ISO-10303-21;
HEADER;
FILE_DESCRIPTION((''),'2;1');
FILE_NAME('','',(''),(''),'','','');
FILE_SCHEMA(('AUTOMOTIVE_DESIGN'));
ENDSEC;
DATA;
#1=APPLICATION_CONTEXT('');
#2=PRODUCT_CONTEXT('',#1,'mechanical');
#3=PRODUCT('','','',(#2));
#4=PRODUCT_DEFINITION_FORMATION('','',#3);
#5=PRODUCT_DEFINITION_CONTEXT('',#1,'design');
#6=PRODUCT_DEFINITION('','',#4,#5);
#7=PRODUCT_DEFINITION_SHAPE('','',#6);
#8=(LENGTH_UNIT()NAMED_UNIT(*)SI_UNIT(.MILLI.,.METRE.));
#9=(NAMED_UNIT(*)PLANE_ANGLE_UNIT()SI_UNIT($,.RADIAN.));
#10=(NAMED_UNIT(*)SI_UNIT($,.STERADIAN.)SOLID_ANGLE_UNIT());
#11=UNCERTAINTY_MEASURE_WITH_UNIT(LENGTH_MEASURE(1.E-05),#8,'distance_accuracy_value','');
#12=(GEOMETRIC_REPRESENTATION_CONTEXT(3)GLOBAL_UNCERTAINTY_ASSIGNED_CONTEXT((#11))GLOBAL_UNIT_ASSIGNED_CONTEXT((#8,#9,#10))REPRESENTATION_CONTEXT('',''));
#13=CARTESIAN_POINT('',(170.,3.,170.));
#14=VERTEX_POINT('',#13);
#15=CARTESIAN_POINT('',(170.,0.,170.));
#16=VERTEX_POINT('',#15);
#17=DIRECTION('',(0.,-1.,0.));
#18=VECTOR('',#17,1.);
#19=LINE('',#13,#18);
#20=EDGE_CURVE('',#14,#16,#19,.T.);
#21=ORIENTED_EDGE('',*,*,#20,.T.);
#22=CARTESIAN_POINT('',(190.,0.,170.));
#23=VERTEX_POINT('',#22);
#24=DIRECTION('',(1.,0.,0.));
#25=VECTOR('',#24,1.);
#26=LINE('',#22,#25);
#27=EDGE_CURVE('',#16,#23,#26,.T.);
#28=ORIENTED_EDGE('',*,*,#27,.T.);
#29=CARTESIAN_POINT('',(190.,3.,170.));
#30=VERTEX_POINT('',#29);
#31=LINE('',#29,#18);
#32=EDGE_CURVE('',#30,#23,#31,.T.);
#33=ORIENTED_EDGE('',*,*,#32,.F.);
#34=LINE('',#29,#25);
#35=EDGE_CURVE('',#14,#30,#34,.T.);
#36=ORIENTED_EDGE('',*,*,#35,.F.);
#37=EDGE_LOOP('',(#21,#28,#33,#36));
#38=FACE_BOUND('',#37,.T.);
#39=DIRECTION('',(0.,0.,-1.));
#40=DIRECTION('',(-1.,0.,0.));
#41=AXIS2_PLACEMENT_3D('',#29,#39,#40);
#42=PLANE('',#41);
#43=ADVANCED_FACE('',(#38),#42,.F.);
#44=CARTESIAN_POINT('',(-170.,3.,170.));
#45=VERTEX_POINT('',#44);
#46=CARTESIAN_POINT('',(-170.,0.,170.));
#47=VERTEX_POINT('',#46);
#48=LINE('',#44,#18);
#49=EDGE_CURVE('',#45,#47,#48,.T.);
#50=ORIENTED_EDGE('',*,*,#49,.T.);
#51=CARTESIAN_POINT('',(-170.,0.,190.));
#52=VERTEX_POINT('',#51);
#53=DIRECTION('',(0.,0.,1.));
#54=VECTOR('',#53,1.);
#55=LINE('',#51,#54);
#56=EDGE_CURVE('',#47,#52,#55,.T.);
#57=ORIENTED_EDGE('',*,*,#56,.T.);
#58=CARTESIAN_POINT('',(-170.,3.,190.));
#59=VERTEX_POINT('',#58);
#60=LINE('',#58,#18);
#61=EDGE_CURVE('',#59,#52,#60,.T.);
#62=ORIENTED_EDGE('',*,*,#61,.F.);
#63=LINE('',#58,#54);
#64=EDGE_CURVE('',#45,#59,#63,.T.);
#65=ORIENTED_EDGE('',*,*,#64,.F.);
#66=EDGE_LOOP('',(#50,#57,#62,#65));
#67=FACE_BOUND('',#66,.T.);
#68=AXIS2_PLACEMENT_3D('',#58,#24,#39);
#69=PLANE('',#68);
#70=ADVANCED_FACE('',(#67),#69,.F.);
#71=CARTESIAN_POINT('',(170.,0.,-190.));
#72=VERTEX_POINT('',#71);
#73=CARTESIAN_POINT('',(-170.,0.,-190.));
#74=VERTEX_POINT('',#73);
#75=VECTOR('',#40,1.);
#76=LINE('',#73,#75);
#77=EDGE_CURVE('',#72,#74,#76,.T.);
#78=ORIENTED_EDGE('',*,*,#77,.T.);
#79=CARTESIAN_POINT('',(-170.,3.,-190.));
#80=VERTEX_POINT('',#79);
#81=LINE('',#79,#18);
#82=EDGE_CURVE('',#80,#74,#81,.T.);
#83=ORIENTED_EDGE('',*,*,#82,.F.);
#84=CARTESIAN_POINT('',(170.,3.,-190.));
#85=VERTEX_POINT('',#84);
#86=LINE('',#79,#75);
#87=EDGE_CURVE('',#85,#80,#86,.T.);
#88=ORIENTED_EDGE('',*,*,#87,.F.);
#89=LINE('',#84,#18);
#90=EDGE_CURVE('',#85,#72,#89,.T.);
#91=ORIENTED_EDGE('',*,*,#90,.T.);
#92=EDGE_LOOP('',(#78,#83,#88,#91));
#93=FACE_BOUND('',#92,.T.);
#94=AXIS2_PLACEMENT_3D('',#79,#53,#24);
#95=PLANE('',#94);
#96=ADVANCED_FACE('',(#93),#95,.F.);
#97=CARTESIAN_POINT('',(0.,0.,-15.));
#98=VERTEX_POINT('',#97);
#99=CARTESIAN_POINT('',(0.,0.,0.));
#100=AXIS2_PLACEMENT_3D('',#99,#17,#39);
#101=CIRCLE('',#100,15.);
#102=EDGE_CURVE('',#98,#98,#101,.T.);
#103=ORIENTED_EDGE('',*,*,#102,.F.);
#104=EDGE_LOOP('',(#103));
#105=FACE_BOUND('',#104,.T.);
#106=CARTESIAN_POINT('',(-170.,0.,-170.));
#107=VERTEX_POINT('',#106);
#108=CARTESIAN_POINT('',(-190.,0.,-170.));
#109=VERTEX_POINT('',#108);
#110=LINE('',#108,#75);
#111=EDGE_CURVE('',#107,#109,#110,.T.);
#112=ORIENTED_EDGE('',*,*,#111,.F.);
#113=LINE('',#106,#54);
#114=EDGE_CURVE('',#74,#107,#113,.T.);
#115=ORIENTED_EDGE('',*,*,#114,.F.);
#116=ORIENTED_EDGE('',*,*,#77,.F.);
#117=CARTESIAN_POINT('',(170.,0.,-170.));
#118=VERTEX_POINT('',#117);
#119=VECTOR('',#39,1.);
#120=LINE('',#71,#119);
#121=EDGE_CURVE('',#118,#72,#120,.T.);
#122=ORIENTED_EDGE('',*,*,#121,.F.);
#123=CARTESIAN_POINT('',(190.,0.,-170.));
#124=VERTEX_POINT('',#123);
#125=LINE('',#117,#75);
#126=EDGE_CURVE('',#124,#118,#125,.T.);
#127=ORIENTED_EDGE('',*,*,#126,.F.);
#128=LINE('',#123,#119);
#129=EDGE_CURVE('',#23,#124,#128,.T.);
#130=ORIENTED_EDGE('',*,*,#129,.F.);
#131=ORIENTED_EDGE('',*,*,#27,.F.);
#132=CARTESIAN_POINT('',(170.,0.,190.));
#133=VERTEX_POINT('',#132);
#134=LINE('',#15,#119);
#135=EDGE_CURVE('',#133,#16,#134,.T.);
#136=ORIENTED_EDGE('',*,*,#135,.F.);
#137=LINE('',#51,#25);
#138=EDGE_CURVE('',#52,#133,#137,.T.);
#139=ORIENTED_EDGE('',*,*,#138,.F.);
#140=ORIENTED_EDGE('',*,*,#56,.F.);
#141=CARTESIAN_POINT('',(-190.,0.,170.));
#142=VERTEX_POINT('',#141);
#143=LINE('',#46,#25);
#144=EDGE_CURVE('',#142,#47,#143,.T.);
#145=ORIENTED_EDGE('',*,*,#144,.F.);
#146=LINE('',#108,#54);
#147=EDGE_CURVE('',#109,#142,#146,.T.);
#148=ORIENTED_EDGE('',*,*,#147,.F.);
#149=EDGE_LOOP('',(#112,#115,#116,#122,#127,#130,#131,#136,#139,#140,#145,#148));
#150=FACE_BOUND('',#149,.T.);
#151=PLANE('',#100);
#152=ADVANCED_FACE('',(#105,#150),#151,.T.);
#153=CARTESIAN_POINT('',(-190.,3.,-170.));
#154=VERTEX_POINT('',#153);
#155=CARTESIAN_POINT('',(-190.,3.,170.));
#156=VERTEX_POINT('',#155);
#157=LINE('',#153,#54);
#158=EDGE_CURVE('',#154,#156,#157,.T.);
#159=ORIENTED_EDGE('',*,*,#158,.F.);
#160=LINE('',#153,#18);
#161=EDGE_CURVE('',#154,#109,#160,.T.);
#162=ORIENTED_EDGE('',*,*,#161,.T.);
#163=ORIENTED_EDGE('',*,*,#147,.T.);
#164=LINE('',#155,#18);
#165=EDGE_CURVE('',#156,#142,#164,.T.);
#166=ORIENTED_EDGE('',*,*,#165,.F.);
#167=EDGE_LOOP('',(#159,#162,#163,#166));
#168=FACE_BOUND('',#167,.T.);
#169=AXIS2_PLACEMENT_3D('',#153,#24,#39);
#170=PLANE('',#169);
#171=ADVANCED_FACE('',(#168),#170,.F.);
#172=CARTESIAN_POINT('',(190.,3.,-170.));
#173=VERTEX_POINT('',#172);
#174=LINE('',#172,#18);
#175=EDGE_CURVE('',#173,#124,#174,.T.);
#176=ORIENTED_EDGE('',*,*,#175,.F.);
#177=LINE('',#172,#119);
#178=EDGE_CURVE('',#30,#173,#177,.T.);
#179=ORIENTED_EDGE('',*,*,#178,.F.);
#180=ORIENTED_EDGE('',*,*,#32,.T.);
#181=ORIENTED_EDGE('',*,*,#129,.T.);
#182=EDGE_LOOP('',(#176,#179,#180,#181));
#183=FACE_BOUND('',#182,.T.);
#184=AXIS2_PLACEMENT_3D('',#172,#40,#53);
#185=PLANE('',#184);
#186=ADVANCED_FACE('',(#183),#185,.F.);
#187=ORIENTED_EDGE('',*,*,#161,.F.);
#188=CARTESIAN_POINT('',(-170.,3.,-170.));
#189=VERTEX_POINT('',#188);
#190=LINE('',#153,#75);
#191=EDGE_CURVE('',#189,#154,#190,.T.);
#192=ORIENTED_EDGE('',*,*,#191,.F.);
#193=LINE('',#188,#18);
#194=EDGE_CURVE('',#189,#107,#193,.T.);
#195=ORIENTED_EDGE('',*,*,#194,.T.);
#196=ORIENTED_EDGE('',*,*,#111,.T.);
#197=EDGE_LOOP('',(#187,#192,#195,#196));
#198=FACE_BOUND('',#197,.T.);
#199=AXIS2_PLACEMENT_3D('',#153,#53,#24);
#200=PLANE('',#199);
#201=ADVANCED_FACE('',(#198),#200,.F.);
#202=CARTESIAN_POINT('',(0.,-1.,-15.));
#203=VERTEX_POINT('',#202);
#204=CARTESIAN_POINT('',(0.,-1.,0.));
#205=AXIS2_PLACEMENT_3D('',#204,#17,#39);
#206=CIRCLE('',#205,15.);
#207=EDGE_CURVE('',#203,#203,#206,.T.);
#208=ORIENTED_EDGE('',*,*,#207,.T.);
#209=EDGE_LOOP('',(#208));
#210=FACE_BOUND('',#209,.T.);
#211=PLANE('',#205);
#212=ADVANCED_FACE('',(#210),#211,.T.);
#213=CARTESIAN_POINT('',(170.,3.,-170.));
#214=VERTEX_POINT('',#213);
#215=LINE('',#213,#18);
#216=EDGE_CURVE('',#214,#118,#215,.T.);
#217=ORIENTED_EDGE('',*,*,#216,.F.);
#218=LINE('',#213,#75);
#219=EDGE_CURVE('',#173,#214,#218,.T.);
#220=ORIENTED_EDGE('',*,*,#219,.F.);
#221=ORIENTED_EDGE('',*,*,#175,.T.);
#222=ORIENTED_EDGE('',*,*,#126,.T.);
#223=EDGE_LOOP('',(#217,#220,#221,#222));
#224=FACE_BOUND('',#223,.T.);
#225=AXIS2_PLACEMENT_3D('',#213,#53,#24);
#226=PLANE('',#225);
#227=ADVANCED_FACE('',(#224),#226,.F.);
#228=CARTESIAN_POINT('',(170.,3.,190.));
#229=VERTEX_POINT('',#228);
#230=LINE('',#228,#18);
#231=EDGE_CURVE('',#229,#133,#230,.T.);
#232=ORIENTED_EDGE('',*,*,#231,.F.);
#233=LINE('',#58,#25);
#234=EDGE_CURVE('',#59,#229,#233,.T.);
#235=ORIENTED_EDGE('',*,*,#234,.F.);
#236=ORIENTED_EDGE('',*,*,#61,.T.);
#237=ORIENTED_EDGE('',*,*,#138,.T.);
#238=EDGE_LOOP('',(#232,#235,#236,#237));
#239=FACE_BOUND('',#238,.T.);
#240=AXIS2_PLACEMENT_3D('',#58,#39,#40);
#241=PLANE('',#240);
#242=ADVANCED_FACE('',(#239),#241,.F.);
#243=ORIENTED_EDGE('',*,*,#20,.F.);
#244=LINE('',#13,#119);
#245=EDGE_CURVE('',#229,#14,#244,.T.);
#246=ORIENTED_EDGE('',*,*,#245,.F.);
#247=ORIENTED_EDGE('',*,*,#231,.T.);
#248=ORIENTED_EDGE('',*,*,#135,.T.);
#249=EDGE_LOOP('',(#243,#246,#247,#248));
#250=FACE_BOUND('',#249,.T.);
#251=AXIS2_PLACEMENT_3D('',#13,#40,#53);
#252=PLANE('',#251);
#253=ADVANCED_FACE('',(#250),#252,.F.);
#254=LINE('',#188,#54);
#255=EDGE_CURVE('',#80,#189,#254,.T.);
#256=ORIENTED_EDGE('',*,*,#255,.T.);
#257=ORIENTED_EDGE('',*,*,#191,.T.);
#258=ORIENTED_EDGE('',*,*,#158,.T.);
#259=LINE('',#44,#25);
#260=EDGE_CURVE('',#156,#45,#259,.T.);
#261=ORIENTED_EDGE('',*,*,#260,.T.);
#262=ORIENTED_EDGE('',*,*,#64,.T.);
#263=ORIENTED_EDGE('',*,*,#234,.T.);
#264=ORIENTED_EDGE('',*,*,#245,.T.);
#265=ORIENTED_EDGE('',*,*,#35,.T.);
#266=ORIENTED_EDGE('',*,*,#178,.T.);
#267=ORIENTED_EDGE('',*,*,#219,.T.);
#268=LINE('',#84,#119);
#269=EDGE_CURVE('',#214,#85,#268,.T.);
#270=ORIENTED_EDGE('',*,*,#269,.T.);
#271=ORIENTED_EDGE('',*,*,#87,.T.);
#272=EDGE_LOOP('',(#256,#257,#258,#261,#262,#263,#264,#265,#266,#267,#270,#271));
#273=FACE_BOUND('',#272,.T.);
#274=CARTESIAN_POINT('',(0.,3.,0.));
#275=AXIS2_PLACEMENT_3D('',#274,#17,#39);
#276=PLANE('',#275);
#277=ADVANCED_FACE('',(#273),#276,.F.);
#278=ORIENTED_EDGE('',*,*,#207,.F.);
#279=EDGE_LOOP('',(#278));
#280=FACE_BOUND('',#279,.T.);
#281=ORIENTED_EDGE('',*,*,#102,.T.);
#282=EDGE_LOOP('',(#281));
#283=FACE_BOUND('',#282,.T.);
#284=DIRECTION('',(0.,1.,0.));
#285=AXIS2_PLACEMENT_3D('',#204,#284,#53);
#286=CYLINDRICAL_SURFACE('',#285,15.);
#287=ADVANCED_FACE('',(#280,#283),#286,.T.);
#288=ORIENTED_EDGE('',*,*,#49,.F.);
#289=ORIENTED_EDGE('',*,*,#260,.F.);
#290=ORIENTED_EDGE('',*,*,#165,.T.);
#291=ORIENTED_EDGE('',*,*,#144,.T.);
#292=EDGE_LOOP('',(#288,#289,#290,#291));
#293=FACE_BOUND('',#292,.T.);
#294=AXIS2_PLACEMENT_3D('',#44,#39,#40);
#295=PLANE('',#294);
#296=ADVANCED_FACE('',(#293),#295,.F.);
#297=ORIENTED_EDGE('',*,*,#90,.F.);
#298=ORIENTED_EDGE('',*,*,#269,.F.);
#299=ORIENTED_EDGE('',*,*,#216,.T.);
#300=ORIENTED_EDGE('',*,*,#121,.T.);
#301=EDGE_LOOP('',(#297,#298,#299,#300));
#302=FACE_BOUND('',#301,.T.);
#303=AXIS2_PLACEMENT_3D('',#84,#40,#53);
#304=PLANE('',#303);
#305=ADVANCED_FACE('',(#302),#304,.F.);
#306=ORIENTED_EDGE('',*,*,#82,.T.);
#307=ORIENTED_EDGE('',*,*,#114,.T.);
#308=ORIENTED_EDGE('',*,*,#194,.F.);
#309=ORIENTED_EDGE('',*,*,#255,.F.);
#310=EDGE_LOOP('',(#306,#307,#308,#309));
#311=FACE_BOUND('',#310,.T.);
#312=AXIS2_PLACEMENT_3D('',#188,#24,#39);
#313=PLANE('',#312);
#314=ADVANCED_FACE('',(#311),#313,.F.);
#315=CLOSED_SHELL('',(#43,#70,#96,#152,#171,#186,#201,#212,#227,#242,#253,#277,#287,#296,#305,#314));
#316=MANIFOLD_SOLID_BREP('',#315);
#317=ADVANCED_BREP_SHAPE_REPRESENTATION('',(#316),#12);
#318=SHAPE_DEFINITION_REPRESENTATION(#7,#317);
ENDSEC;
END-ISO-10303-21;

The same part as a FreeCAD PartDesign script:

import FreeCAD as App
import Part
import Sketcher

V = App.Vector


def add_polygon(sketch, points):
    """Adds a closed chain of lines whose ends are joined by coincident constraints."""
    first, n = sketch.GeometryCount, len(points)
    for a, b in zip(points, points[1:] + points[:1]):
        sketch.addGeometry(Part.LineSegment(App.Vector(*a, 0), App.Vector(*b, 0)), False)
    for i in range(n):
        sketch.addConstraint(Sketcher.Constraint("Coincident", first + i, 2, first + (i + 1) % n, 1))

doc = App.newDocument("Part")
params = doc.addObject("Spreadsheet::Sheet", "Params")
for row, (alias, value) in enumerate([
    ("sketch1_width", "340 mm"),
    ("sketch1_width2", "20 mm"),
    ("pad1_length", "3 mm"),
    ("sketch2_diameter", "30 mm"),
    ("pad2_length", "1 mm"),
], start=1):
    params.set(f"A{row}", alias)
    params.set(f"B{row}", "=" + value)
    params.setAlias(f"B{row}", alias)

body = doc.addObject("PartDesign::Body", "Body")

sketch1 = body.newObject("Sketcher::SketchObject", "Sketch")
sketch1.AttachmentSupport = (doc.getObject("XZ_Plane"), [""])
sketch1.MapMode = "FlatFace"
add_polygon(sketch1, [(170, -170), (170, -190), (-170, -190), (-170, -170), (-190, -170), (-190, 170), (-170, 170), (-170, 190), (170, 190), (170, 170), (190, 170), (190, -170)])
sketch1.addConstraint(Sketcher.Constraint("Vertical", 0))
sketch1.addConstraint(Sketcher.Constraint("Horizontal", 1))
sketch1.addConstraint(Sketcher.Constraint("Vertical", 2))
sketch1.addConstraint(Sketcher.Constraint("Horizontal", 3))
sketch1.addConstraint(Sketcher.Constraint("Vertical", 4))
sketch1.addConstraint(Sketcher.Constraint("Horizontal", 5))
sketch1.addConstraint(Sketcher.Constraint("Vertical", 6))
sketch1.addConstraint(Sketcher.Constraint("Horizontal", 7))
sketch1.addConstraint(Sketcher.Constraint("Vertical", 8))
sketch1.addConstraint(Sketcher.Constraint("Horizontal", 9))
sketch1.addConstraint(Sketcher.Constraint("Vertical", 10))
sketch1.addConstraint(Sketcher.Constraint("Horizontal", 11))
sketch1.addConstraint(Sketcher.Constraint("Symmetric", 0, 2, 6, 2, -1, 1))
sketch1.addConstraint(Sketcher.Constraint("Symmetric", 2, 2, 8, 2, -1, 1))
sketch1.addConstraint(Sketcher.Constraint("Symmetric", 4, 2, 10, 2, -1, 1))
sketch1.addConstraint(Sketcher.Constraint("Symmetric", 5, 2, 8, 2, -2))
sketch1.addConstraint(Sketcher.Constraint("Equal", 11, 0))
sketch1.addConstraint(Sketcher.Constraint("Equal", 7, 4))
sketch1.addConstraint(Sketcher.Constraint("DistanceX", 1, 2, 1, 1, 340.0))
sketch1.addConstraint(Sketcher.Constraint("DistanceX", 3, 2, 3, 1, 20.0))
sketch1.setExpression("Constraints[30]", "Params.sketch1_width")
sketch1.setExpression("Constraints[31]", "Params.sketch1_width2")
pad1 = body.newObject("PartDesign::Pad", "Pad")
pad1.Profile = sketch1
pad1.setExpression("Length", "Params.pad1_length")
pad1.Reversed = True

sketch2 = body.newObject("Sketcher::SketchObject", "Sketch001")
sketch2.AttachmentSupport = (doc.getObject("XZ_Plane"), [""])
sketch2.MapMode = "FlatFace"
sketch2.addGeometry(Part.Circle(V(0, 0, 0), V(0, 0, 1), 15), False)
sketch2.addConstraint(Sketcher.Constraint("Coincident", 0, 3, -1, 1))
sketch2.addConstraint(Sketcher.Constraint("Diameter", 0, 30.0))
sketch2.setExpression("Constraints[1]", "Params.sketch2_diameter")
pad2 = body.newObject("PartDesign::Pad", "Pad001")
pad2.Profile = sketch2
pad2.setExpression("Length", "Params.pad2_length")

doc.recompute()
